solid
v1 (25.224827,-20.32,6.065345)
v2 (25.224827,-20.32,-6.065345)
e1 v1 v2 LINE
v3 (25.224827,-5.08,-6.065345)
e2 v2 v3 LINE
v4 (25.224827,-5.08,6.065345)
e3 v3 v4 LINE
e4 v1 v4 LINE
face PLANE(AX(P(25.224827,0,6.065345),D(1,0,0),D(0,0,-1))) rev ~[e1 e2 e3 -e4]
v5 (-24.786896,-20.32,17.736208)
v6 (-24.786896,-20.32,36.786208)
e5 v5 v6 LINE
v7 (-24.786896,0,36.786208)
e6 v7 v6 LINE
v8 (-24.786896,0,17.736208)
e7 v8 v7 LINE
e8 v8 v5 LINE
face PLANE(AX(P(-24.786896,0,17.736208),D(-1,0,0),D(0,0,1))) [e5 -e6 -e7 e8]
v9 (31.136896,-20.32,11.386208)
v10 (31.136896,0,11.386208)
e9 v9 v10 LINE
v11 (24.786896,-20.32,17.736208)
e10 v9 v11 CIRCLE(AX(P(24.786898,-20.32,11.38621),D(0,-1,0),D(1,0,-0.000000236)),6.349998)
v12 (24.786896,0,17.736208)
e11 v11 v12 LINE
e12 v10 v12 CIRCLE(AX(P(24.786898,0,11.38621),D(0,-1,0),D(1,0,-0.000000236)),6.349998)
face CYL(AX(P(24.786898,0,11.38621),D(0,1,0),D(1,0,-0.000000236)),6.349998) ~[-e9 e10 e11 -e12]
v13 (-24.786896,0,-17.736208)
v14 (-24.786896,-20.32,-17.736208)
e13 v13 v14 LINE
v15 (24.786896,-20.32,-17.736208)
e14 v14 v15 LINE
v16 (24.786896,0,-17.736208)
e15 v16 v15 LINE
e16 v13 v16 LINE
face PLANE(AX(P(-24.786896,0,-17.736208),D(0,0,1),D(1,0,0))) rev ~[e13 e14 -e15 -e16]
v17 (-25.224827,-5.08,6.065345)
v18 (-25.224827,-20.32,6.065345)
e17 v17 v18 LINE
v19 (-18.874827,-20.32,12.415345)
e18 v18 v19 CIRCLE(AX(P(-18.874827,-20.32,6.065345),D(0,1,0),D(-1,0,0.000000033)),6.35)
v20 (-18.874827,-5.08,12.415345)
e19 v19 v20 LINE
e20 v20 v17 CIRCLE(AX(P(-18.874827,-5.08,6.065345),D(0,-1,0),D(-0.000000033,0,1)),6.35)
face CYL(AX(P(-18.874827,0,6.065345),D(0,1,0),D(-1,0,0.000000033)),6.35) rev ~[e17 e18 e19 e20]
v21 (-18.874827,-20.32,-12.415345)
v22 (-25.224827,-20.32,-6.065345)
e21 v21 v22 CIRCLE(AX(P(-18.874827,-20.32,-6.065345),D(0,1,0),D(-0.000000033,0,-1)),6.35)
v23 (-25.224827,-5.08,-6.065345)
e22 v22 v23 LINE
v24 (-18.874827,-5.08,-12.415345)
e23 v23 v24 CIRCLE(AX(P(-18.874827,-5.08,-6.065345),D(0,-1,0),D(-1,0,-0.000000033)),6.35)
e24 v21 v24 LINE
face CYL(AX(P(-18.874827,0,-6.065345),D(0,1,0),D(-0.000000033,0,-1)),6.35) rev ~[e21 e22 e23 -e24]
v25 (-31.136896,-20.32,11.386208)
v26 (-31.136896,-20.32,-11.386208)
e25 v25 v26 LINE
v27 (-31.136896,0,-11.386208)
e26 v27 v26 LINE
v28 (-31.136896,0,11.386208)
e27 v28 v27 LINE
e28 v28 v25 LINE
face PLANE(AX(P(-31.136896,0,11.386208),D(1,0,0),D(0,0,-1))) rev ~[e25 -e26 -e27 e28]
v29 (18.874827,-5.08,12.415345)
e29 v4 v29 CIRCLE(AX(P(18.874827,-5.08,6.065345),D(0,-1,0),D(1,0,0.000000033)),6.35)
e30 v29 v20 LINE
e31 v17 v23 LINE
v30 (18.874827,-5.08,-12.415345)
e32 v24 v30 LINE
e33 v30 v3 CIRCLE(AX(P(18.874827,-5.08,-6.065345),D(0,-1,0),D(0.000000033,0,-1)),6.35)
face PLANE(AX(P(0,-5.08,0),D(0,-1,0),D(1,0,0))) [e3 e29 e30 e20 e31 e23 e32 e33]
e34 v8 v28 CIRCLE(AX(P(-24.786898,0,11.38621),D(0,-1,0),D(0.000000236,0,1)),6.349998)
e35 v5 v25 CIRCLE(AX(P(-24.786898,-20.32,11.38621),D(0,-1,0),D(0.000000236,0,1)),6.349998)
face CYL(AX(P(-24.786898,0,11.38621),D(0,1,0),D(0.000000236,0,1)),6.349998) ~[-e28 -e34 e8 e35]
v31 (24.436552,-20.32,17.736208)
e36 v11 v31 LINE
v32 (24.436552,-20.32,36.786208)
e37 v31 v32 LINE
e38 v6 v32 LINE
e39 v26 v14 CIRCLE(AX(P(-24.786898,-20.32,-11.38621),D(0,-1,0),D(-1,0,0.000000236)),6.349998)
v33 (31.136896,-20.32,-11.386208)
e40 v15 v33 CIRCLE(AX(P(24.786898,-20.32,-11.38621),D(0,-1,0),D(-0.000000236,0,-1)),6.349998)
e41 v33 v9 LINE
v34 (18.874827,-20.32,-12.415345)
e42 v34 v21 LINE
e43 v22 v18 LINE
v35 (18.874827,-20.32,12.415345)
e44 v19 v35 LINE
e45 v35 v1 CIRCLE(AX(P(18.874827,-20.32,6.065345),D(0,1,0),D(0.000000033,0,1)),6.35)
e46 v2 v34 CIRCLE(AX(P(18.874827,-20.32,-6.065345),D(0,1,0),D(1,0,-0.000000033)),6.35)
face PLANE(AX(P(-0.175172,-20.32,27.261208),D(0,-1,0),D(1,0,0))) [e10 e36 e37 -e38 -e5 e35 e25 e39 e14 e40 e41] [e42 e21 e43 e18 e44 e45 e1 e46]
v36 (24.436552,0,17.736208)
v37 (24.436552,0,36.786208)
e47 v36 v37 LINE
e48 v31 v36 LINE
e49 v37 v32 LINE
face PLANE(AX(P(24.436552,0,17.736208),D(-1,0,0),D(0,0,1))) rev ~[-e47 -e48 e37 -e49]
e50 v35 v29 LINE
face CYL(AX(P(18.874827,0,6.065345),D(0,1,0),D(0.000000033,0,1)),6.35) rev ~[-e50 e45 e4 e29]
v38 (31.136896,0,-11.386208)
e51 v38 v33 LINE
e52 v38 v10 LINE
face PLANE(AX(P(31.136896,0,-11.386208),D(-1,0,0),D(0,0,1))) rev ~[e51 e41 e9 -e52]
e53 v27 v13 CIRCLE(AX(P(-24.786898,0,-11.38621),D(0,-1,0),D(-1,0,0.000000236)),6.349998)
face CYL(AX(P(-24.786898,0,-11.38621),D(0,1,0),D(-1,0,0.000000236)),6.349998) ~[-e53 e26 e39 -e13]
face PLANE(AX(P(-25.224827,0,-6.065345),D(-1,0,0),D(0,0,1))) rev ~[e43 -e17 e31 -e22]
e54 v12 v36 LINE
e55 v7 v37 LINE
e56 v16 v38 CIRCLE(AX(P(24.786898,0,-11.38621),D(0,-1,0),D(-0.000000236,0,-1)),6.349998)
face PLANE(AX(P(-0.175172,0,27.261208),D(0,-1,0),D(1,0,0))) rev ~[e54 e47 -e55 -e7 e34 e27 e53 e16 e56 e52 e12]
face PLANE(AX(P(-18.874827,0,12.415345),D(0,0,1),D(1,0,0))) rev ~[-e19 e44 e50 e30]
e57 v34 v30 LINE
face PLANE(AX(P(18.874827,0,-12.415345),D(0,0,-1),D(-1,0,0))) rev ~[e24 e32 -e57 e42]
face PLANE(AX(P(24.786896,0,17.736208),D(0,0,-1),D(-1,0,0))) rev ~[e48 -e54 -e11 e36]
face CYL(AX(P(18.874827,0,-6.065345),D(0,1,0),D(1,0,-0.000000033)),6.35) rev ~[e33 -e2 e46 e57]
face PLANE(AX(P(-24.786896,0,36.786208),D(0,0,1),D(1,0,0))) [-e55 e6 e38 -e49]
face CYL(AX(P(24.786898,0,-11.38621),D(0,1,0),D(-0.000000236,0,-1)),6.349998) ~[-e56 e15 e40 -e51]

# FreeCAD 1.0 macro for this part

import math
import FreeCAD as App
import Part
import Sketcher

V = App.Vector
Q = App.Units.Quantity

doc = App.newDocument("Part")
body = doc.addObject("PartDesign::Body", "Body")

sketch1 = body.newObject("Sketcher::SketchObject", "Sketch")
sketch1.AttachmentSupport = (doc.getObject("XZ_Plane"), [""])
sketch1.MapMode = "FlatFace"
sketch1.addGeometry([
    Part.ArcOfCircle(Part.Circle(V(-25, 11, 0), V(0, 0, 1), 6), math.radians(90), math.radians(180)),
    Part.LineSegment(V(-31, 11, 0), V(-31, -11, 0)),
    Part.ArcOfCircle(Part.Circle(V(-25, -11, 0), V(0, 0, 1), 6), math.radians(180), math.radians(270)),
    Part.LineSegment(V(-25, -18, 0), V(25, -18, 0)),
    Part.ArcOfCircle(Part.Circle(V(25, -11, 0), V(0, 0, 1), 6), math.radians(-90), math.radians(0)),
    Part.LineSegment(V(31, -11, 0), V(31, 11, 0)),
    Part.ArcOfCircle(Part.Circle(V(25, 11, 0), V(0, 0, 1), 6), math.radians(0), math.radians(90)),
    Part.LineSegment(V(25, 18, 0), V(-25, 18, 0)),
    Part.LineSegment(V(-25, -6, 0), V(-25, 6, 0)),
    Part.ArcOfCircle(Part.Circle(V(-19, 6, 0), V(0, 0, 1), 6), math.radians(90), math.radians(180)),
    Part.LineSegment(V(-19, 12, 0), V(19, 12, 0)),
    Part.ArcOfCircle(Part.Circle(V(19, 6, 0), V(0, 0, 1), 6), math.radians(0), math.radians(90)),
    Part.LineSegment(V(25, 6, 0), V(25, -6, 0)),
    Part.ArcOfCircle(Part.Circle(V(19, -6, 0), V(0, 0, 1), 6), math.radians(-90), math.radians(0)),
    Part.LineSegment(V(19, -12, 0), V(-19, -12, 0)),
    Part.ArcOfCircle(Part.Circle(V(-19, -6, 0), V(0, 0, 1), 6), math.radians(-180), math.radians(-90)),
], False)
sketch1.addConstraint([
    Sketcher.Constraint("Tangent", 0, 2, 1, 1),
    Sketcher.Constraint("Tangent", 1, 2, 2, 1),
    Sketcher.Constraint("Tangent", 2, 2, 3, 1),
    Sketcher.Constraint("Tangent", 3, 2, 4, 1),
    Sketcher.Constraint("Tangent", 4, 2, 5, 1),
    Sketcher.Constraint("Tangent", 5, 2, 6, 1),
    Sketcher.Constraint("Tangent", 6, 2, 7, 1),
    Sketcher.Constraint("Tangent", 7, 2, 0, 1),
    Sketcher.Constraint("Tangent", 8, 2, 9, 2),
    Sketcher.Constraint("Tangent", 9, 1, 10, 1),
    Sketcher.Constraint("Tangent", 10, 2, 11, 2),
    Sketcher.Constraint("Tangent", 11, 1, 12, 1),
    Sketcher.Constraint("Tangent", 12, 2, 13, 2),
    Sketcher.Constraint("Tangent", 13, 1, 14, 1),
    Sketcher.Constraint("Tangent", 14, 2, 15, 2),
    Sketcher.Constraint("Tangent", 15, 1, 8, 1),
    Sketcher.Constraint("Vertical", 1),
    Sketcher.Constraint("Horizontal", 3),
    Sketcher.Constraint("Vertical", 5),
    Sketcher.Constraint("Horizontal", 7),
    Sketcher.Constraint("Vertical", 8),
    Sketcher.Constraint("Horizontal", 10),
    Sketcher.Constraint("Vertical", 12),
    Sketcher.Constraint("Horizontal", 14),
    Sketcher.Constraint("Equal", 0, 2),
    Sketcher.Constraint("Equal", 2, 4),
    Sketcher.Constraint("Equal", 4, 6),
    Sketcher.Constraint("Equal", 6, 9),
    Sketcher.Constraint("Equal", 9, 11),
    Sketcher.Constraint("Equal", 11, 13),
    Sketcher.Constraint("Equal", 13, 15),
    Sketcher.Constraint("Symmetric", 0, 3, 4, 3, -1, 1),
    Sketcher.Constraint("Symmetric", 9, 3, 13, 3, -1, 1),
    Sketcher.Constraint("Radius", 0, Q("0.2499999 in")),
    Sketcher.Constraint("DistanceX", 3, 1, 3, 2, Q("49.573792 mm")),
    Sketcher.Constraint("DistanceY", 8, 1, 8, 2, Q("12.13069 mm")),
    Sketcher.Constraint("DistanceX", 10, 1, 10, 2, Q("37.749654 mm")),
    Sketcher.Constraint("DistanceY", 1, 2, 1, 1, Q("22.772416 mm")),
])
pad1 = body.newObject("PartDesign::Pad", "Pad")
pad1.Profile = sketch1
pad1.Length = Q("0.75 in")

sketch2 = body.newObject("Sketcher::SketchObject", "Sketch001")
sketch2.AttachmentSupport = (doc.getObject("XZ_Plane"), [""])
sketch2.MapMode = "FlatFace"
sketch2.addGeometry([
    Part.LineSegment(V(19, 12, 0), V(-19, 12, 0)),
    Part.ArcOfCircle(Part.Circle(V(-19, 6, 0), V(0, 0, 1), 6), math.radians(90), math.radians(180)),
    Part.LineSegment(V(-25, 6, 0), V(-25, -6, 0)),
    Part.ArcOfCircle(Part.Circle(V(-19, -6, 0), V(0, 0, 1), 6), math.radians(-180), math.radians(-90)),
    Part.LineSegment(V(-19, -12, 0), V(19, -12, 0)),
    Part.ArcOfCircle(Part.Circle(V(19, -6, 0), V(0, 0, 1), 6), math.radians(-90), math.radians(0)),
    Part.LineSegment(V(25, -6, 0), V(25, 6, 0)),
    Part.ArcOfCircle(Part.Circle(V(19, 6, 0), V(0, 0, 1), 6), math.radians(0), math.radians(90)),
], False)
sketch2.addConstraint([
    Sketcher.Constraint("Tangent", 0, 2, 1, 1),
    Sketcher.Constraint("Tangent", 1, 2, 2, 1),
    Sketcher.Constraint("Tangent", 2, 2, 3, 1),
    Sketcher.Constraint("Tangent", 3, 2, 4, 1),
    Sketcher.Constraint("Tangent", 4, 2, 5, 1),
    Sketcher.Constraint("Tangent", 5, 2, 6, 1),
    Sketcher.Constraint("Tangent", 6, 2, 7, 1),
    Sketcher.Constraint("Tangent", 7, 2, 0, 1),
    Sketcher.Constraint("Horizontal", 0),
    Sketcher.Constraint("Vertical", 2),
    Sketcher.Constraint("Horizontal", 4),
    Sketcher.Constraint("Vertical", 6),
    Sketcher.Constraint("Equal", 1, 3),
    Sketcher.Constraint("Equal", 3, 5),
    Sketcher.Constraint("Equal", 5, 7),
    Sketcher.Constraint("Symmetric", 1, 3, 5, 3, -1, 1),
    Sketcher.Constraint("Radius", 1, Q("0.25 in")),
    Sketcher.Constraint("DistanceY", 2, 2, 2, 1, Q("12.13069 mm")),
    Sketcher.Constraint("DistanceX", 0, 2, 0, 1, Q("37.749654 mm")),
])
pad2 = body.newObject("PartDesign::Pad", "Pad001")
pad2.Profile = sketch2
pad2.Length = Q("0.2 in")

sketch3 = body.newObject("Sketcher::SketchObject", "Sketch002")
sketch3.AttachmentSupport = (doc.getObject("XZ_Plane"), [""])
sketch3.MapMode = "FlatFace"
sketch3.addGeometry([
    Part.LineSegment(V(-24.79, 36.79, 0), V(-24.79, 17.74, 0)),
    Part.ArcOfCircle(Part.Circle(V(-24.79, 11.39, 0), V(0, 0, 1), 6.35), math.radians(90), math.radians(180)),
    Part.LineSegment(V(-31.14, 11.39, 0), V(-31.14, -11.39, 0)),
    Part.ArcOfCircle(Part.Circle(V(-24.79, -11.39, 0), V(0, 0, 1), 6.35), math.radians(180), math.radians(270)),
    Part.LineSegment(V(-24.79, -17.74, 0), V(24.79, -17.74, 0)),
    Part.ArcOfCircle(Part.Circle(V(24.79, -11.39, 0), V(0, 0, 1), 6.35), math.radians(-90), math.radians(0)),
    Part.LineSegment(V(31.14, -11.39, 0), V(31.14, 11.39, 0)),
    Part.ArcOfCircle(Part.Circle(V(24.79, 11.39, 0), V(0, 0, 1), 6.35), math.radians(0), math.radians(90)),
    Part.LineSegment(V(24.79, 17.74, 0), V(24.44, 17.74, 0)),
    Part.LineSegment(V(24.44, 17.74, 0), V(24.44, 36.79, 0)),
    Part.LineSegment(V(24.44, 36.79, 0), V(-24.79, 36.79, 0)),
    Part.LineSegment(V(-25.22, -6.07, 0), V(-25.22, 6.07, 0)),
    Part.ArcOfCircle(Part.Circle(V(-18.87, 6.07, 0), V(0, 0, 1), 6.35), math.radians(90), math.radians(180)),
    Part.LineSegment(V(-18.87, 12.42, 0), V(18.87, 12.42, 0)),
    Part.ArcOfCircle(Part.Circle(V(18.87, 6.07, 0), V(0, 0, 1), 6.35), math.radians(0), math.radians(90)),
    Part.LineSegment(V(25.22, 6.07, 0), V(25.22, -6.07, 0)),
    Part.ArcOfCircle(Part.Circle(V(18.87, -6.07, 0), V(0, 0, 1), 6.35), math.radians(-90), math.radians(0)),
    Part.LineSegment(V(18.87, -12.42, 0), V(-18.87, -12.42, 0)),
    Part.ArcOfCircle(Part.Circle(V(-18.87, -6.07, 0), V(0, 0, 1), 6.35), math.radians(-180), math.radians(-90)),
], False)
sketch3.addConstraint([
    Sketcher.Constraint("Coincident", 0, 2, 1, 1),
    Sketcher.Constraint("Tangent", 1, 2, 2, 1),
    Sketcher.Constraint("Tangent", 2, 2, 3, 1),
    Sketcher.Constraint("Tangent", 3, 2, 4, 1),
    Sketcher.Constraint("Tangent", 4, 2, 5, 1),
    Sketcher.Constraint("Tangent", 5, 2, 6, 1),
    Sketcher.Constraint("Tangent", 6, 2, 7, 1),
    Sketcher.Constraint("Tangent", 7, 2, 8, 1),
    Sketcher.Constraint("Coincident", 8, 2, 9, 1),
    Sketcher.Constraint("Coincident", 9, 2, 10, 1),
    Sketcher.Constraint("Coincident", 10, 2, 0, 1),
    Sketcher.Constraint("Tangent", 11, 2, 12, 2),
    Sketcher.Constraint("Tangent", 12, 1, 13, 1),
    Sketcher.Constraint("Tangent", 13, 2, 14, 2),
    Sketcher.Constraint("Tangent", 14, 1, 15, 1),
    Sketcher.Constraint("Tangent", 15, 2, 16, 2),
    Sketcher.Constraint("Tangent", 16, 1, 17, 1),
    Sketcher.Constraint("Tangent", 17, 2, 18, 2),
    Sketcher.Constraint("Tangent", 18, 1, 11, 1),
    Sketcher.Constraint("Vertical", 0),
    Sketcher.Constraint("Vertical", 2),
    Sketcher.Constraint("Horizontal", 4),
    Sketcher.Constraint("Vertical", 6),
    Sketcher.Constraint("Horizontal", 8),
    Sketcher.Constraint("Vertical", 9),
    Sketcher.Constraint("Horizontal", 10),
    Sketcher.Constraint("Vertical", 11),
    Sketcher.Constraint("Horizontal", 13),
    Sketcher.Constraint("Vertical", 15),
    Sketcher.Constraint("Horizontal", 17),
    Sketcher.Constraint("Equal", 1, 3),
    Sketcher.Constraint("Equal", 3, 5),
    Sketcher.Constraint("Equal", 5, 7),
    Sketcher.Constraint("Equal", 7, 12),
    Sketcher.Constraint("Equal", 12, 14),
    Sketcher.Constraint("Equal", 14, 16),
    Sketcher.Constraint("Equal", 16, 18),
    Sketcher.Constraint("Symmetric", 1, 3, 5, 3, -1, 1),
    Sketcher.Constraint("Symmetric", 12, 3, 16, 3, -1, 1),
    Sketcher.Constraint("Symmetric", 0, 2, 7, 2, -2),
    Sketcher.Constraint("Radius", 1, Q("0.2499999 in")),
    Sketcher.Constraint("DistanceY", 7, 3, 9, 2, Q("0.9999999 in")),
    Sketcher.Constraint("DistanceX", 4, 1, 4, 2, Q("49.573792 mm")),
    Sketcher.Constraint("DistanceY", 11, 1, 11, 2, Q("12.13069 mm")),
    Sketcher.Constraint("DistanceX", 8, 2, 8, 1, Q("0.350344 mm")),
    Sketcher.Constraint("DistanceX", 13, 1, 13, 2, Q("37.749654 mm")),
    Sketcher.Constraint("DistanceY", 2, 2, 2, 1, Q("22.772416 mm")),
])
pad3 = body.newObject("PartDesign::Pad", "Pad002")
pad3.Profile = sketch3
pad3.Length = Q("0.8 in")

doc.recompute()
